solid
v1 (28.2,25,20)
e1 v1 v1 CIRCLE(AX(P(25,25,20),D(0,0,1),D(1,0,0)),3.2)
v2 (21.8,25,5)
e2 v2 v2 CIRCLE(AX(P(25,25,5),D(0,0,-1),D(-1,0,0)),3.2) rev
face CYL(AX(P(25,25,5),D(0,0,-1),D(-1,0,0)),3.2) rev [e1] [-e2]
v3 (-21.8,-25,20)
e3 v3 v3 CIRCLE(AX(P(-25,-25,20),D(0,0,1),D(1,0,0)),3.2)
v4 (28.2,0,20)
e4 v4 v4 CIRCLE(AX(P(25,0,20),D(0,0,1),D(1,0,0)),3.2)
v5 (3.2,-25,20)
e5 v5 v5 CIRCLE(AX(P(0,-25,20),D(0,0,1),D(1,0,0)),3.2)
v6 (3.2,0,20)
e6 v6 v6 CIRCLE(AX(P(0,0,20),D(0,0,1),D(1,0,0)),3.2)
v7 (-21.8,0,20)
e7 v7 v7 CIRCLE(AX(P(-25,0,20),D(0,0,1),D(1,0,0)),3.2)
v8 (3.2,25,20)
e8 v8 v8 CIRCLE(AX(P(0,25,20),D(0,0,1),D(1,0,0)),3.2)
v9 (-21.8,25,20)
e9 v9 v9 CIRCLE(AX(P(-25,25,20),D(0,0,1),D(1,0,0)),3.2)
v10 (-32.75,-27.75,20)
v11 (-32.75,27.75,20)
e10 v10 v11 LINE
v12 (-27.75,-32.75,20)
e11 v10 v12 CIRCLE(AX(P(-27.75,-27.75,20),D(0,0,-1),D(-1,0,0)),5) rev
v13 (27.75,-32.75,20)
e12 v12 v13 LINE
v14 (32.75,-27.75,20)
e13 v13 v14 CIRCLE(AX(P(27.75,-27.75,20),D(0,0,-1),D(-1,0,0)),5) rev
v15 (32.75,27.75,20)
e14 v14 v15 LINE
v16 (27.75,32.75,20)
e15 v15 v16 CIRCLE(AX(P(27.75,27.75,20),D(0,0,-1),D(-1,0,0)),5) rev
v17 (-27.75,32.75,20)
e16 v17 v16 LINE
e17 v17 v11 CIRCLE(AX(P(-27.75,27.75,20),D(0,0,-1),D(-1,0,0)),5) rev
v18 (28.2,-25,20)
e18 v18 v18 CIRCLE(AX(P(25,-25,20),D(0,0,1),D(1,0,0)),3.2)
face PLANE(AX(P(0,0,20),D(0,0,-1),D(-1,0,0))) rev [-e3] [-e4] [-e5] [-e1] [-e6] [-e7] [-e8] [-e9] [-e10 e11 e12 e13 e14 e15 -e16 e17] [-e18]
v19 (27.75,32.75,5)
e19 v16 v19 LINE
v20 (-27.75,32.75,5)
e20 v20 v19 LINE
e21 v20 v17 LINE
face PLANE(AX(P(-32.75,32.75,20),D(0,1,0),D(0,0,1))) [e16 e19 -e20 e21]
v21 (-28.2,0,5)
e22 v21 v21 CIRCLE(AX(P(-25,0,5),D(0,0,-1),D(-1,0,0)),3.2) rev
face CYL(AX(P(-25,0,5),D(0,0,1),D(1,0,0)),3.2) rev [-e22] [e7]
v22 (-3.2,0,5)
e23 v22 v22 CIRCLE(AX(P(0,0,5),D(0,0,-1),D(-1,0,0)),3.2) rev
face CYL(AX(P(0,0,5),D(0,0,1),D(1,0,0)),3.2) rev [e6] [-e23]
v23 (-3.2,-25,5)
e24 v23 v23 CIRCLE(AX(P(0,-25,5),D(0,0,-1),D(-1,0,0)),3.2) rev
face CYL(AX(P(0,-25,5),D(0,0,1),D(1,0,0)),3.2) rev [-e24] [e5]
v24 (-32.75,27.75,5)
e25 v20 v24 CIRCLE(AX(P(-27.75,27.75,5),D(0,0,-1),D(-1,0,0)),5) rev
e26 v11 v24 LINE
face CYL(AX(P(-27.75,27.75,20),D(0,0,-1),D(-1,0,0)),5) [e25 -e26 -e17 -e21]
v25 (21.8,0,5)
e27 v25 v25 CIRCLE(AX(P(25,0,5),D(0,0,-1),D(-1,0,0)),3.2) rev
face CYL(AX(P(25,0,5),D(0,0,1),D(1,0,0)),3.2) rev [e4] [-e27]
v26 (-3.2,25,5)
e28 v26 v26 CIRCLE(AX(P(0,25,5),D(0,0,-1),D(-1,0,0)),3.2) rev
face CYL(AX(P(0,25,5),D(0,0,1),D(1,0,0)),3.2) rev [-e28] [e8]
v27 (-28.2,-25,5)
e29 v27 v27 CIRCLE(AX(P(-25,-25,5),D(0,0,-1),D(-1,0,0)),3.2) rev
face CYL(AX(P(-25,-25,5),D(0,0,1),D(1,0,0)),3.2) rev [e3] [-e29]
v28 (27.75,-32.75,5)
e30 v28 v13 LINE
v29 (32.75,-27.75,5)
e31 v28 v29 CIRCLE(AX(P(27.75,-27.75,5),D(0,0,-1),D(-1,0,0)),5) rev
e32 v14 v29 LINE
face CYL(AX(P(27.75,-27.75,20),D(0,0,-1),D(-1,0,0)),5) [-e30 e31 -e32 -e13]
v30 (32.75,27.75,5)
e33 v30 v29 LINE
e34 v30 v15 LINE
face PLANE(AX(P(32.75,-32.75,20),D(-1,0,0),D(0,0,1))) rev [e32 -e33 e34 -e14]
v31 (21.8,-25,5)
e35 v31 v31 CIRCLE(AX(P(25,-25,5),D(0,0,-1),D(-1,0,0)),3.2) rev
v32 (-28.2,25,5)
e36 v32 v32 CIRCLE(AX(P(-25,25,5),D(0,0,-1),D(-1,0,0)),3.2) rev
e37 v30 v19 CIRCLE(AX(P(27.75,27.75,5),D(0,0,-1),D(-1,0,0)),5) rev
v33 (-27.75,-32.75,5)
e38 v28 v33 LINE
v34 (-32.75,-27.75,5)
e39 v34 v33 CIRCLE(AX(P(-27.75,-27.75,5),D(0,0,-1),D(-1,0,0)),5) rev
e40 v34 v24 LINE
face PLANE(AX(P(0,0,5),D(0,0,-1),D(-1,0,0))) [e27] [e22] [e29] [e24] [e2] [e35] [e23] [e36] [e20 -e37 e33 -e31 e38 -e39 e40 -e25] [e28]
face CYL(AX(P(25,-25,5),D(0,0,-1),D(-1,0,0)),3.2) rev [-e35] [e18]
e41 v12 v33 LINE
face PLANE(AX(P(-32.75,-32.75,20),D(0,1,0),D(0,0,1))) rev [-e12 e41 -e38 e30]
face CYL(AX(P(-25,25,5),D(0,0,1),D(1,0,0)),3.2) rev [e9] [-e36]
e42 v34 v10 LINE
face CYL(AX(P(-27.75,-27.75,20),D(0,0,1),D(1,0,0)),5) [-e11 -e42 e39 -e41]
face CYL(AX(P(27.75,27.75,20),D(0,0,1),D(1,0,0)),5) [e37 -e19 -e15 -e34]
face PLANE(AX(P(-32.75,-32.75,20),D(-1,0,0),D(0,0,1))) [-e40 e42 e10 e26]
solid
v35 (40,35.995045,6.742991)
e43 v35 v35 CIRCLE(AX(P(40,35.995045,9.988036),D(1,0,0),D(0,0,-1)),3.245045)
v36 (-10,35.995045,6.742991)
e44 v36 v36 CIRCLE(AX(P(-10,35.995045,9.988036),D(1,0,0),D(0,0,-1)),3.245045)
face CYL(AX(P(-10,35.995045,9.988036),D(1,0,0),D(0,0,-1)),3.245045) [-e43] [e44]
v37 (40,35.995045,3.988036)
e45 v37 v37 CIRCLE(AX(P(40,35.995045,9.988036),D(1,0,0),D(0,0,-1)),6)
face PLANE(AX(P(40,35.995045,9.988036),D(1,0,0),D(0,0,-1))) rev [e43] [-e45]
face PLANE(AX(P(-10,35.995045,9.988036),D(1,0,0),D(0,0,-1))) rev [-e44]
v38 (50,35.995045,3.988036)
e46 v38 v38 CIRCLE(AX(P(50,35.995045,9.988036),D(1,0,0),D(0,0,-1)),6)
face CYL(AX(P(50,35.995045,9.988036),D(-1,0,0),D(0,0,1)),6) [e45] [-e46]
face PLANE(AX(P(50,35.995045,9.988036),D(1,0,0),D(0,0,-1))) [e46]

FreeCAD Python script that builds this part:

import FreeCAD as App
import Part
import Sketcher
Q = App.Units.Quantity


def edges_at(feature, points):
    """Names of the edges that pass closest to the given points."""
    edges = feature.Shape.Edges
    near = lambda p: min(range(len(edges)), key=lambda i: edges[i].distToShape(Part.Vertex(*p))[0])
    return sorted({f"Edge{near(p) + 1}" for p in points})

doc = App.newDocument("Part")
body = doc.addObject("PartDesign::Body", "Body")

# Sketch on XY plane
sketch1 = body.newObject("Sketcher::SketchObject", "Sketch")
sketch1.AttachmentSupport = (doc.getObject("XY_Plane"), [""])
sketch1.MapMode = "FlatFace"
sketch1.addGeometry(Part.LineSegment(App.Vector(-33, 33, 0), App.Vector(-33, -33, 0)), False)
sketch1.addGeometry(Part.LineSegment(App.Vector(-33, -33, 0), App.Vector(33, -33, 0)), False)
sketch1.addGeometry(Part.LineSegment(App.Vector(33, -33, 0), App.Vector(33, 33, 0)), False)
sketch1.addGeometry(Part.LineSegment(App.Vector(33, 33, 0), App.Vector(-33, 33, 0)), False)
sketch1.addConstraint(Sketcher.Constraint("Coincident", 0, 2, 1, 1))
sketch1.addConstraint(Sketcher.Constraint("Coincident", 1, 2, 2, 1))
sketch1.addConstraint(Sketcher.Constraint("Coincident", 2, 2, 3, 1))
sketch1.addConstraint(Sketcher.Constraint("Coincident", 3, 2, 0, 1))
sketch1.addConstraint(Sketcher.Constraint("Vertical", 0))
sketch1.addConstraint(Sketcher.Constraint("Horizontal", 1))
sketch1.addConstraint(Sketcher.Constraint("Vertical", 2))
sketch1.addConstraint(Sketcher.Constraint("Horizontal", 3))
sketch1.addConstraint(Sketcher.Constraint("Symmetric", 0, 2, 2, 2, -1, 1))
sketch1.addConstraint(Sketcher.Constraint("Equal", 3, 0))
sketch1.addConstraint(Sketcher.Constraint("DistanceX", 1, 1, 1, 2, Q("65.5 mm")))
pad1 = body.newObject("PartDesign::Pad", "Pad")
pad1.Profile = sketch1
pad1.Length = 20
doc.recompute()

fillet = body.newObject("PartDesign::Fillet", "Fillet")
fillet.Base = (pad1, edges_at(pad1, [
    (-32.75, -32.75, 10),
    (32.75, -32.75, 10),
    (32.75, 32.75, 10),
    (-32.75, 32.75, 10),
]))
fillet.Radius = 5

# Sketch on XY plane
sketch2 = body.newObject("Sketcher::SketchObject", "Sketch001")
sketch2.AttachmentSupport = (doc.getObject("XY_Plane"), [""])
sketch2.MapMode = "FlatFace"
sketch2.addGeometry(Part.Circle(App.Vector(25, -25, 0), App.Vector(0, 0, 1), 3.2), False)
sketch2.addGeometry(Part.Circle(App.Vector(25, 25, 0), App.Vector(0, 0, 1), 3.2), False)
sketch2.addConstraint(Sketcher.Constraint("Equal", 0, 1))
sketch2.addConstraint(Sketcher.Constraint("Symmetric", 0, 3, 1, 3, -1))
sketch2.addConstraint(Sketcher.Constraint("Diameter", 0, Q("6.4 mm")))
sketch2.addConstraint(Sketcher.Constraint("DistanceX", -1, 1, 0, 3, Q("25 mm")))
sketch2.addConstraint(Sketcher.Constraint("DistanceY", 0, 3, -1, 1, Q("25 mm")))
pocket1 = body.newObject("PartDesign::Pocket", "Pocket")
pocket1.Profile = sketch2
pocket1.Length = 5
pocket1.Reversed = True

# Sketch on XY plane
sketch3 = body.newObject("Sketcher::SketchObject", "Sketch002")
sketch3.AttachmentSupport = (doc.getObject("XY_Plane"), [""])
sketch3.MapMode = "FlatFace"
sketch3.AttachmentOffset = App.Placement(App.Vector(0, 0, 5), App.Rotation())
sketch3.addGeometry(Part.Circle(App.Vector(25, -25, 0), App.Vector(0, 0, 1), 3.2), False)
sketch3.addGeometry(Part.Circle(App.Vector(25, 25, 0), App.Vector(0, 0, 1), 3.2), False)
sketch3.addGeometry(Part.Circle(App.Vector(25, 0, 0), App.Vector(0, 0, 1), 3.2), False)
sketch3.addGeometry(Part.Circle(App.Vector(0, -25, 0), App.Vector(0, 0, 1), 3.2), False)
sketch3.addGeometry(Part.Circle(App.Vector(0, 25, 0), App.Vector(0, 0, 1), 3.2), False)
sketch3.addGeometry(Part.Circle(App.Vector(0, 0, 0), App.Vector(0, 0, 1), 3.2), False)
sketch3.addGeometry(Part.Circle(App.Vector(-25, -25, 0), App.Vector(0, 0, 1), 3.2), False)
sketch3.addGeometry(Part.Circle(App.Vector(-25, 25, 0), App.Vector(0, 0, 1), 3.2), False)
sketch3.addGeometry(Part.Circle(App.Vector(-25, 0, 0), App.Vector(0, 0, 1), 3.2), False)
sketch3.addConstraint(Sketcher.Constraint("Coincident", 5, 3, -1, 1))
sketch3.addConstraint(Sketcher.Constraint("Equal", 0, 1))
sketch3.addConstraint(Sketcher.Constraint("Equal", 1, 2))
sketch3.addConstraint(Sketcher.Constraint("Equal", 2, 3))
sketch3.addConstraint(Sketcher.Constraint("Equal", 3, 4))
sketch3.addConstraint(Sketcher.Constraint("Equal", 4, 5))
sketch3.addConstraint(Sketcher.Constraint("Equal", 5, 6))
sketch3.addConstraint(Sketcher.Constraint("Equal", 6, 7))
sketch3.addConstraint(Sketcher.Constraint("Equal", 7, 8))
sketch3.addConstraint(Sketcher.Constraint("Symmetric", 3, 3, 4, 3, -1, 1))
sketch3.addConstraint(Sketcher.Constraint("Symmetric", 1, 3, 6, 3, -1, 1))
sketch3.addConstraint(Sketcher.Constraint("Symmetric", 0, 3, 7, 3, -1, 1))
sketch3.addConstraint(Sketcher.Constraint("Symmetric", 2, 3, 8, 3, -1, 1))
sketch3.addConstraint(Sketcher.Constraint("Symmetric", 0, 3, 6, 3, -2))
sketch3.addConstraint(Sketcher.Constraint("PointOnObject", 2, 3, -1))
sketch3.addConstraint(Sketcher.Constraint("PointOnObject", 3, 3, -2))
sketch3.addConstraint(Sketcher.Constraint("Horizontal", 0, 3, 3, 3))
sketch3.addConstraint(Sketcher.Constraint("Vertical", 1, 3, 2, 3))
sketch3.addConstraint(Sketcher.Constraint("Diameter", 0, Q("6.4 mm")))
sketch3.addConstraint(Sketcher.Constraint("DistanceX", -1, 1, 0, 3, Q("25 mm")))
sketch3.addConstraint(Sketcher.Constraint("DistanceY", 0, 3, -1, 1, Q("25 mm")))
pocket2 = body.newObject("PartDesign::Pocket", "Pocket001")
pocket2.Profile = sketch3
pocket2.Length = 15
pocket2.Reversed = True

# Sketch on XY plane
sketch4 = body.newObject("Sketcher::SketchObject", "Sketch003")
sketch4.AttachmentSupport = (doc.getObject("XY_Plane"), [""])
sketch4.MapMode = "FlatFace"
sketch4.addGeometry(Part.LineSegment(App.Vector(33, 33, 0), App.Vector(33, -33, 0)), False)
sketch4.addGeometry(Part.LineSegment(App.Vector(33, -33, 0), App.Vector(-33, -33, 0)), False)
sketch4.addGeometry(Part.LineSegment(App.Vector(-33, -33, 0), App.Vector(-33, 33, 0)), False)
sketch4.addGeometry(Part.LineSegment(App.Vector(-33, 33, 0), App.Vector(33, 33, 0)), False)
sketch4.addConstraint(Sketcher.Constraint("Coincident", 0, 2, 1, 1))
sketch4.addConstraint(Sketcher.Constraint("Coincident", 1, 2, 2, 1))
sketch4.addConstraint(Sketcher.Constraint("Coincident", 2, 2, 3, 1))
sketch4.addConstraint(Sketcher.Constraint("Coincident", 3, 2, 0, 1))
sketch4.addConstraint(Sketcher.Constraint("Vertical", 0))
sketch4.addConstraint(Sketcher.Constraint("Horizontal", 1))
sketch4.addConstraint(Sketcher.Constraint("Vertical", 2))
sketch4.addConstraint(Sketcher.Constraint("Horizontal", 3))
sketch4.addConstraint(Sketcher.Constraint("Symmetric", 0, 2, 2, 2, -1, 1))
sketch4.addConstraint(Sketcher.Constraint("Equal", 3, 0))
sketch4.addConstraint(Sketcher.Constraint("DistanceX", 1, 2, 1, 1, Q("65.5 mm")))
pocket3 = body.newObject("PartDesign::Pocket", "Pocket002")
pocket3.Profile = sketch4
pocket3.Length = 5
pocket3.Reversed = True
body2 = doc.addObject("PartDesign::Body", "Body001")

# Sketch on YZ plane
sketch5 = body2.newObject("Sketcher::SketchObject", "Sketch004")
sketch5.AttachmentSupport = (doc.getObject("YZ_Plane001"), [""])
sketch5.MapMode = "FlatFace"
sketch5.addGeometry(Part.Circle(App.Vector(36, 10, 0), App.Vector(0, 0, 1), 3.2), False)
sketch5.addConstraint(Sketcher.Constraint("Diameter", 0, Q("6.490089 mm")))
sketch5.addConstraint(Sketcher.Constraint("DistanceX", -1, 1, 0, 3, Q("35.995045 mm")))
sketch5.addConstraint(Sketcher.Constraint("DistanceY", -1, 1, 0, 3, Q("9.988036 mm")))
pad2 = body2.newObject("PartDesign::Pad", "Pad001")
pad2.Profile = sketch5
pad2.Type = "TwoLengths"
pad2.Length = 40
pad2.Length2 = 10

# Sketch on YZ plane
sketch6 = body2.newObject("Sketcher::SketchObject", "Sketch005")
sketch6.AttachmentSupport = (doc.getObject("YZ_Plane001"), [""])
sketch6.MapMode = "FlatFace"
sketch6.AttachmentOffset = App.Placement(App.Vector(0, 0, 40), App.Rotation())
sketch6.addGeometry(Part.Circle(App.Vector(36, 10, 0), App.Vector(0, 0, 1), 6), False)
sketch6.addConstraint(Sketcher.Constraint("Diameter", 0, Q("12 mm")))
sketch6.addConstraint(Sketcher.Constraint("DistanceX", -1, 1, 0, 3, Q("35.995045 mm")))
sketch6.addConstraint(Sketcher.Constraint("DistanceY", -1, 1, 0, 3, Q("9.988036 mm")))
pad3 = body2.newObject("PartDesign::Pad", "Pad002")
pad3.Profile = sketch6
pad3.Length = 10

doc.recompute()
